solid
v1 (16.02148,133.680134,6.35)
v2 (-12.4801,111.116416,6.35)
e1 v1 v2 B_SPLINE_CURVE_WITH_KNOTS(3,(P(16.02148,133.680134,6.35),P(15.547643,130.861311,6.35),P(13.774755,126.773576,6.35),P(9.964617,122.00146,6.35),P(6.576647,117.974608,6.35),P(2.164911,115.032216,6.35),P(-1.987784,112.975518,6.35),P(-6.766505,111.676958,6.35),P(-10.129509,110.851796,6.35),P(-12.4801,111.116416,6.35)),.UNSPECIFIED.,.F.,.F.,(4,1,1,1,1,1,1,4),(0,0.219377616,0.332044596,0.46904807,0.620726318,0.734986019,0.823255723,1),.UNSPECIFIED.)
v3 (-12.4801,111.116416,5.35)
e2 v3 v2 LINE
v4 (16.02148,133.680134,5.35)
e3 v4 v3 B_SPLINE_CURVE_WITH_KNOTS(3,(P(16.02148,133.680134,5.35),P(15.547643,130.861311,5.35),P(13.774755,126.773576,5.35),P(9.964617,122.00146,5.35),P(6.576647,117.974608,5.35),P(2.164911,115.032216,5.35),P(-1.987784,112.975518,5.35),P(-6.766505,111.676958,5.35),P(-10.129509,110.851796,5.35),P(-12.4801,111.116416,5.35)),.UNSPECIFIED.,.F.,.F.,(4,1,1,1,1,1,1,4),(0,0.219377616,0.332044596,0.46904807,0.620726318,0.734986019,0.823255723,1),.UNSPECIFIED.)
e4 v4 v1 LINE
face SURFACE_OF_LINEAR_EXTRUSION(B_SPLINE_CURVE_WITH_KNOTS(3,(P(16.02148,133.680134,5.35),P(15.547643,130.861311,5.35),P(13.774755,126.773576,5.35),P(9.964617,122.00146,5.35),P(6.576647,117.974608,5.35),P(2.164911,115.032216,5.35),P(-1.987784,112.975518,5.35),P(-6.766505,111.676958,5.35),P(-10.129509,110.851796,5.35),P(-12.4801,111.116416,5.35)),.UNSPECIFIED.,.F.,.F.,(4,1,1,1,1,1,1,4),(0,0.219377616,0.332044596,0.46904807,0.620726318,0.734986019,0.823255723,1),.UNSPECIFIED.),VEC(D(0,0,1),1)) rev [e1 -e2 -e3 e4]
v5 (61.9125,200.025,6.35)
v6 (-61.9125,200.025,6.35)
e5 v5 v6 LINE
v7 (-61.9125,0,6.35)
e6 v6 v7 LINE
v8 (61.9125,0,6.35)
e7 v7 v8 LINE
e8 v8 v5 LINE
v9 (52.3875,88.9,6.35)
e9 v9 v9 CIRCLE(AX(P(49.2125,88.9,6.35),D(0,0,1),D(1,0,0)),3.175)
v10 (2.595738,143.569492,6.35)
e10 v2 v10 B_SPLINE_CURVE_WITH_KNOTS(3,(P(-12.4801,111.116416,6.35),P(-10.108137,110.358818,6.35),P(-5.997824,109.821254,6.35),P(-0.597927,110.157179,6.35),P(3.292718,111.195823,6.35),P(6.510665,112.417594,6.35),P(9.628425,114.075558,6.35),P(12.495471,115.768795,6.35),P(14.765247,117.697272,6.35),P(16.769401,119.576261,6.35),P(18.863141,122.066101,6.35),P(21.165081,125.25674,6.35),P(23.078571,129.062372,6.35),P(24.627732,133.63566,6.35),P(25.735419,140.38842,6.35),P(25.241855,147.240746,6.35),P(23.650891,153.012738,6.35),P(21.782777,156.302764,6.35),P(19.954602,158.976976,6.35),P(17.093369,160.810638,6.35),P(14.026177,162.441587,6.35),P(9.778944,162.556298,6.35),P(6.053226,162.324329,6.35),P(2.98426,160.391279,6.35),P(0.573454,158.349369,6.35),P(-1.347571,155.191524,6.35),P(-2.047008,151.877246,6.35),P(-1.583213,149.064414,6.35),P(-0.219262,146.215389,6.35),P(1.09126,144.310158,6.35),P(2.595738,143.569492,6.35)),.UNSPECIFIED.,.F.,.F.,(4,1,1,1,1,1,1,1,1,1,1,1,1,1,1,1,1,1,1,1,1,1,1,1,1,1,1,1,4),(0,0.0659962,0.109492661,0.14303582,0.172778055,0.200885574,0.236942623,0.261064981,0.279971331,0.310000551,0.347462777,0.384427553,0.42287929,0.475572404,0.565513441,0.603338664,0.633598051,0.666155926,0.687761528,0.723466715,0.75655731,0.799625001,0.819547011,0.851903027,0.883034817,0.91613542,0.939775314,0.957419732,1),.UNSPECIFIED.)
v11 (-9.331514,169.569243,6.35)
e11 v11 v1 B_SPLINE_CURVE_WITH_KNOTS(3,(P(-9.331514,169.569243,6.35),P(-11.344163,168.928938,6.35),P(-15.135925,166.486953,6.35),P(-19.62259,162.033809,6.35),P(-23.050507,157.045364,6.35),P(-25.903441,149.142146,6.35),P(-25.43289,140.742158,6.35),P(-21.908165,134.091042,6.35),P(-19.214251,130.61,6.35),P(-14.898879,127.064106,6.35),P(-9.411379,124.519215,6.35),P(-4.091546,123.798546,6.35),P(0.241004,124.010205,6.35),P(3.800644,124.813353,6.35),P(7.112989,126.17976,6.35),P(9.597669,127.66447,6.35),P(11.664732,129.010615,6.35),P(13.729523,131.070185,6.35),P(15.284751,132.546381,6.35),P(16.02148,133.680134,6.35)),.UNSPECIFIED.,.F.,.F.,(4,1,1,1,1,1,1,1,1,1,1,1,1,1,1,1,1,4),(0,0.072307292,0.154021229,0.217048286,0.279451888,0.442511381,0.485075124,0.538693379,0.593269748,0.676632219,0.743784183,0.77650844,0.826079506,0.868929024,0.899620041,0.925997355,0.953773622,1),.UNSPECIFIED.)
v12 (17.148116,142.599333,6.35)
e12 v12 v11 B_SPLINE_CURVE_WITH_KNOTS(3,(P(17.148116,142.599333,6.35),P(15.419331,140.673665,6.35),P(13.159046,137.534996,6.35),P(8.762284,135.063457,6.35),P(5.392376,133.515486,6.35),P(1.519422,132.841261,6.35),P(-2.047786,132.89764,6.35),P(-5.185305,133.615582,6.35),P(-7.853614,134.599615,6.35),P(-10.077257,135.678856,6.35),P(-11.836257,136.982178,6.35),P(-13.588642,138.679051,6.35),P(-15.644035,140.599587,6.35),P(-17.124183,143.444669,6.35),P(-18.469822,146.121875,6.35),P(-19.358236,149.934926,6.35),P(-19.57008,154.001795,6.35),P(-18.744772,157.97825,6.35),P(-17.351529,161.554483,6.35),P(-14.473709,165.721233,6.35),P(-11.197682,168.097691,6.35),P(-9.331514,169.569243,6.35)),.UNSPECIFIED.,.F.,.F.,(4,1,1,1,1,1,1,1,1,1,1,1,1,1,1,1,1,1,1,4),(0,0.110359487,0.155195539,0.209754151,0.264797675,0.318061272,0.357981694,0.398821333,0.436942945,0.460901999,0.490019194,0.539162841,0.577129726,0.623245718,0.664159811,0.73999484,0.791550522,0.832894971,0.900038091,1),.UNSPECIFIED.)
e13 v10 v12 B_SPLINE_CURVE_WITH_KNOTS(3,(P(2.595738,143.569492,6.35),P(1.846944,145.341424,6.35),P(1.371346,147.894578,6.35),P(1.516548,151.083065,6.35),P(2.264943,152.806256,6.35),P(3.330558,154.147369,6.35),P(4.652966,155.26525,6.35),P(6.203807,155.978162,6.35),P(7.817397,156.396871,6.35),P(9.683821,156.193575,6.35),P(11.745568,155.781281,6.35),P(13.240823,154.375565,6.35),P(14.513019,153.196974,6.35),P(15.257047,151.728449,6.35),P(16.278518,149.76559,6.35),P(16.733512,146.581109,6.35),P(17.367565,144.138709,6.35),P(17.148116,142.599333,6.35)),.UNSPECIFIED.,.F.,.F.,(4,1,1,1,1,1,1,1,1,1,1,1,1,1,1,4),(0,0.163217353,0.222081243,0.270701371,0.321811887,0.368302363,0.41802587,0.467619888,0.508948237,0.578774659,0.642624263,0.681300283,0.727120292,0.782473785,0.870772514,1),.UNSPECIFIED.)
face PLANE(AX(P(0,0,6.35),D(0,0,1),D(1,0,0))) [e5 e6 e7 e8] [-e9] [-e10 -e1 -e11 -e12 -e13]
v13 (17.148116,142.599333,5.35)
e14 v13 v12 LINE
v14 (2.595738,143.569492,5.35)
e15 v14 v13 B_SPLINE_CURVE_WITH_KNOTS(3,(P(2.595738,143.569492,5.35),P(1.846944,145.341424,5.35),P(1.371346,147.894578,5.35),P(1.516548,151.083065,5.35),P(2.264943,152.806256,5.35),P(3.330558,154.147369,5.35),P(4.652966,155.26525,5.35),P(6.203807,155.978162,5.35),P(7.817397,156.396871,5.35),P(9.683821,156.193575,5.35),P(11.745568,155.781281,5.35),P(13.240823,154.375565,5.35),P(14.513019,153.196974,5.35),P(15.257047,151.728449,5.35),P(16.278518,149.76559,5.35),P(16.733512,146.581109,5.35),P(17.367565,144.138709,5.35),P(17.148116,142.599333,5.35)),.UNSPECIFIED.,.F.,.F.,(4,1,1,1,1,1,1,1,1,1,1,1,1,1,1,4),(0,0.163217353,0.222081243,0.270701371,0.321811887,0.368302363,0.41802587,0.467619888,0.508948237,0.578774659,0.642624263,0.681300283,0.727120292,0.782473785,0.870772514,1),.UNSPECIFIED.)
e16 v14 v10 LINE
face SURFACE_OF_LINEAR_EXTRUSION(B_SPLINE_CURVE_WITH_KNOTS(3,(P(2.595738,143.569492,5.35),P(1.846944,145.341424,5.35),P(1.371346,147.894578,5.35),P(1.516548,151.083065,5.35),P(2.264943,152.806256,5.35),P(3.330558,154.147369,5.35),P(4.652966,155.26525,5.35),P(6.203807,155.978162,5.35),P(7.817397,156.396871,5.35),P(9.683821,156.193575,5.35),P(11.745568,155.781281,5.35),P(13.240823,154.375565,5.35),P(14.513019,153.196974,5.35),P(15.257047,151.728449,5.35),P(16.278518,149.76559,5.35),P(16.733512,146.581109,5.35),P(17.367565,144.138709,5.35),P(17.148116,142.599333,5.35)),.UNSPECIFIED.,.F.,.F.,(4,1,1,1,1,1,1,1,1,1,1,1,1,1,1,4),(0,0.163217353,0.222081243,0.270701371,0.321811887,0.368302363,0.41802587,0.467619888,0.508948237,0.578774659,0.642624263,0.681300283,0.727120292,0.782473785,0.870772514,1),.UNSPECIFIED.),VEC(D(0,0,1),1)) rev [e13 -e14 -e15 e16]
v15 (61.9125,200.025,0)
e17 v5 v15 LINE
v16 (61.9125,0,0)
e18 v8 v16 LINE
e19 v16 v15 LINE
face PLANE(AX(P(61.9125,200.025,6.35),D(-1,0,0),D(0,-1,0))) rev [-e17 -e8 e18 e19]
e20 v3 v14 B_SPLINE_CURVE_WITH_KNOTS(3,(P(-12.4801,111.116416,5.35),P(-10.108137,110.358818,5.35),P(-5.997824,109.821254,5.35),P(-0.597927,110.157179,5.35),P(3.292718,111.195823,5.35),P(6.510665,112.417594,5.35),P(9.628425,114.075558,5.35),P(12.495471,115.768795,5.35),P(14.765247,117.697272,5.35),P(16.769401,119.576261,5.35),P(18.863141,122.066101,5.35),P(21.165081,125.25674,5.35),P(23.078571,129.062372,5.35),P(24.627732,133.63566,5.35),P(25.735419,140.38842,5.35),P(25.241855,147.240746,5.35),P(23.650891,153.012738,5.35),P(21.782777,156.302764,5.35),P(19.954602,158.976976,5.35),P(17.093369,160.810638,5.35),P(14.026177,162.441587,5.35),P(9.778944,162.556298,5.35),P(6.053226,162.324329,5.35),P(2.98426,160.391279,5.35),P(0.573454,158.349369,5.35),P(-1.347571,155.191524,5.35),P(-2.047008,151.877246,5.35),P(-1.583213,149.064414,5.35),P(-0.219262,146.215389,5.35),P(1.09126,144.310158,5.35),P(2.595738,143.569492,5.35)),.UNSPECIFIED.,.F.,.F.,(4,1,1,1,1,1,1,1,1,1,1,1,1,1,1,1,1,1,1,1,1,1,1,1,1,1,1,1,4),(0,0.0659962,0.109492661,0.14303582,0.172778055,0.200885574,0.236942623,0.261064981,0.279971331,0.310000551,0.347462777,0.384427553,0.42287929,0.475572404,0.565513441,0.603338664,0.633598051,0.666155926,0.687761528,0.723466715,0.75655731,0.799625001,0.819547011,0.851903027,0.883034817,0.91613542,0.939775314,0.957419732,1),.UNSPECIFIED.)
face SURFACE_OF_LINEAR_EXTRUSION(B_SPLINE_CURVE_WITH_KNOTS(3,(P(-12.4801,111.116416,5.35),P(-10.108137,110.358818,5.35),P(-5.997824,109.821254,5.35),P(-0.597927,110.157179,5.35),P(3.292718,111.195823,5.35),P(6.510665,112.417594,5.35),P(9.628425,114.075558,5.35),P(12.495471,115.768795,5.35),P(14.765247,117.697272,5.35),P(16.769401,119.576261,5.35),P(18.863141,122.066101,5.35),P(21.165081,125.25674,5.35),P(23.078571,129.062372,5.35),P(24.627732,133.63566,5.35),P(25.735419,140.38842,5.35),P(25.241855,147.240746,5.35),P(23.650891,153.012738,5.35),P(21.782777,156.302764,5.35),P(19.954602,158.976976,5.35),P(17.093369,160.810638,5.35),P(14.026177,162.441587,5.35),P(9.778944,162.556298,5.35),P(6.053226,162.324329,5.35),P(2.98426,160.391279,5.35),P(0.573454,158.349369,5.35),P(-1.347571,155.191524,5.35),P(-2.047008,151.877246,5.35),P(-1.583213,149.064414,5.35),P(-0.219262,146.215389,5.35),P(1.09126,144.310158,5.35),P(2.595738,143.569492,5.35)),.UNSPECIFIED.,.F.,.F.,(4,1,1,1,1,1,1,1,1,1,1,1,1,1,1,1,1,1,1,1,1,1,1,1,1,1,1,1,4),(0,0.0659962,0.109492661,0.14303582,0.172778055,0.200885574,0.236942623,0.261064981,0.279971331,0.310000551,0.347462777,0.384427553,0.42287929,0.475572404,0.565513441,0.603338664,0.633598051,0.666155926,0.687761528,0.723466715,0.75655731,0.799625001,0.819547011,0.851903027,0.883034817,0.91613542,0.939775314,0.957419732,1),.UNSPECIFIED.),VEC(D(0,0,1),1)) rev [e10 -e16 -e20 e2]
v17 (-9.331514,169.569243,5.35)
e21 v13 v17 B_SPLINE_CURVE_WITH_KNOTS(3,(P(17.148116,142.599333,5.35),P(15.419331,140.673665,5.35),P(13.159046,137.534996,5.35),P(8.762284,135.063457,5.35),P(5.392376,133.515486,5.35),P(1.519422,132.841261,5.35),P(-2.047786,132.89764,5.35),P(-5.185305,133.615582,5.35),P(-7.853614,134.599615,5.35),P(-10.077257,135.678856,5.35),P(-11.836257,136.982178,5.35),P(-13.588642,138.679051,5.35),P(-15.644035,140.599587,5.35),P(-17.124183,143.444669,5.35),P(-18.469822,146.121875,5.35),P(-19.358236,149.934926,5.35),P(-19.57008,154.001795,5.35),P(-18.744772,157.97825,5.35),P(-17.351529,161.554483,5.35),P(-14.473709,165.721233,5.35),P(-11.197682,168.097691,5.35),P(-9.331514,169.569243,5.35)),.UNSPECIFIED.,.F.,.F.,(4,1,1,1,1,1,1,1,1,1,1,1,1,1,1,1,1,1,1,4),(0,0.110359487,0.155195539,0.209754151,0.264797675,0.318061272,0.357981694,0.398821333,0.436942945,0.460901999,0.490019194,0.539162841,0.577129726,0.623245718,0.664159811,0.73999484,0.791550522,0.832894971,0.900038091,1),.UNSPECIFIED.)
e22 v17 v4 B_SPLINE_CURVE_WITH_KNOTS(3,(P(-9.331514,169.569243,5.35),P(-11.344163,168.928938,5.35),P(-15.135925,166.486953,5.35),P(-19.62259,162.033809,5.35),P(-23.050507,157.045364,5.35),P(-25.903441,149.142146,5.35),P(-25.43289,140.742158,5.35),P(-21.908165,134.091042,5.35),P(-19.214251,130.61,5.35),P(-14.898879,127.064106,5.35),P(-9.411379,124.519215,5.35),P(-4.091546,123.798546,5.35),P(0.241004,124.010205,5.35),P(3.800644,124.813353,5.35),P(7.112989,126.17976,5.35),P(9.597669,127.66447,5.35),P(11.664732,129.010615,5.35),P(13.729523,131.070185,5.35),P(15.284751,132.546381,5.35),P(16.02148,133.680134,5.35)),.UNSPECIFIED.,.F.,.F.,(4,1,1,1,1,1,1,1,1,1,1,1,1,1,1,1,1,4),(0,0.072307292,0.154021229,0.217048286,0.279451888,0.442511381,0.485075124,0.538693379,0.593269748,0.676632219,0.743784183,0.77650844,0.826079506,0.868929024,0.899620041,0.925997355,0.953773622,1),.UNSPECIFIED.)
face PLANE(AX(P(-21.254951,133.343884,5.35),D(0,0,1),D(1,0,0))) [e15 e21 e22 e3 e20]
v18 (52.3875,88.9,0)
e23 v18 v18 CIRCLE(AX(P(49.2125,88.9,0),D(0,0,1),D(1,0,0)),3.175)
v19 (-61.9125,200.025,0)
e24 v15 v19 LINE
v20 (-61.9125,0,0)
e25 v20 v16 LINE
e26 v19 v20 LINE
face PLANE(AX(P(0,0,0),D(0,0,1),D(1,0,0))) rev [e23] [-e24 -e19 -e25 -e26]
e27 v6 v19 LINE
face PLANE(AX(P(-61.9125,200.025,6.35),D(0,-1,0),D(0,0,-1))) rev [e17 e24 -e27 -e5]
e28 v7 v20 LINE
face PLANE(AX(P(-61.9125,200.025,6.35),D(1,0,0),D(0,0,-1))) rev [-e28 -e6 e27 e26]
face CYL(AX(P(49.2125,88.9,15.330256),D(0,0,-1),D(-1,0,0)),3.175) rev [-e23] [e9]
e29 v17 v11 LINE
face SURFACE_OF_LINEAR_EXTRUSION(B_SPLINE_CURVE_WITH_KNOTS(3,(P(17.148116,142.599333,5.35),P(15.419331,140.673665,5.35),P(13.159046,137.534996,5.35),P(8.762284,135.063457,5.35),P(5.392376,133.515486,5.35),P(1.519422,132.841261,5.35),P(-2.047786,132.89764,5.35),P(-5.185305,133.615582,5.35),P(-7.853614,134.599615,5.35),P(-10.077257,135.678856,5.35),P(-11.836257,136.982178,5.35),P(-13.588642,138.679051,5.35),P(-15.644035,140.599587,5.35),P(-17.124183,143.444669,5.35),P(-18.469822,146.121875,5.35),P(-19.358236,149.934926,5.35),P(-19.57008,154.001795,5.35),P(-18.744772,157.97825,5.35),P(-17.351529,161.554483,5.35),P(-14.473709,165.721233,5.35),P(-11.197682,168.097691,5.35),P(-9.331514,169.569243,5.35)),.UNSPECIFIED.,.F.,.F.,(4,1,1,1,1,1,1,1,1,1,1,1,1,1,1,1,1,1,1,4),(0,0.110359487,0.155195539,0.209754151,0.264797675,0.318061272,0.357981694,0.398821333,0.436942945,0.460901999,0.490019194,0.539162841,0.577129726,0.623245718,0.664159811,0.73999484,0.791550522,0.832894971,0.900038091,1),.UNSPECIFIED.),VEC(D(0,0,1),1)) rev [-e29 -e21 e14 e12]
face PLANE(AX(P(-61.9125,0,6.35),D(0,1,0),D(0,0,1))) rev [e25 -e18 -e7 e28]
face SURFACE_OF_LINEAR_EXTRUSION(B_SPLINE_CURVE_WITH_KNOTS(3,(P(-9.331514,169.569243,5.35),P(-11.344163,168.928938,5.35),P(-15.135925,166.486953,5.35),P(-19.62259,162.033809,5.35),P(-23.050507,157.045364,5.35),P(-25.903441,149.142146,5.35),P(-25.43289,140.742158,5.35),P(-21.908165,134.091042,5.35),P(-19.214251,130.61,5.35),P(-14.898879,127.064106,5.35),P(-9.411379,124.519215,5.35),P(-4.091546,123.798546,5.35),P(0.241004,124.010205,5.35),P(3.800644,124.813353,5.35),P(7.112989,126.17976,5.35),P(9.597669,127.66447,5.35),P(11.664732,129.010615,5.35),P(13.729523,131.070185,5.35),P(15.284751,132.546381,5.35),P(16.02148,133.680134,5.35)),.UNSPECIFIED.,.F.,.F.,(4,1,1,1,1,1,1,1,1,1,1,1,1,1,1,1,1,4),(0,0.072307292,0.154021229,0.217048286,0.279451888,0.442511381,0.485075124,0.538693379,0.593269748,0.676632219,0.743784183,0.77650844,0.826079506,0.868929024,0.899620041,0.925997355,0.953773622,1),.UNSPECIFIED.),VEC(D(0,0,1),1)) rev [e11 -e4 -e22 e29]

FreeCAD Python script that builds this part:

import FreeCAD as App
import Part
import Sketcher
Q = App.Units.Quantity

doc = App.newDocument("Part")
body = doc.addObject("PartDesign::Body", "Body")

# Sketch on XY plane
sketch1 = body.newObject("Sketcher::SketchObject", "Sketch")
sketch1.AttachmentSupport = (doc.getObject("XY_Plane"), [""])
sketch1.MapMode = "FlatFace"
sketch1.addGeometry([
    Part.LineSegment(App.Vector(-62, 200, 0), App.Vector(-62, 0, 0)),
    Part.LineSegment(App.Vector(-62, 0, 0), App.Vector(62, 0, 0)),
    Part.LineSegment(App.Vector(62, 0, 0), App.Vector(62, 200, 0)),
    Part.LineSegment(App.Vector(62, 200, 0), App.Vector(-62, 200, 0)),
], False)
sketch1.addConstraint([
    Sketcher.Constraint("Coincident", 0, 2, 1, 1),
    Sketcher.Constraint("Coincident", 1, 2, 2, 1),
    Sketcher.Constraint("Coincident", 2, 2, 3, 1),
    Sketcher.Constraint("Coincident", 3, 2, 0, 1),
    Sketcher.Constraint("Vertical", 0),
    Sketcher.Constraint("Horizontal", 1),
    Sketcher.Constraint("Vertical", 2),
    Sketcher.Constraint("Horizontal", 3),
    Sketcher.Constraint("Symmetric", 0, 2, 1, 2, -1, 1),
    Sketcher.Constraint("DistanceX", 1, 1, 1, 2, Q("4.875 in")),
    Sketcher.Constraint("DistanceY", 0, 2, 0, 1, Q("7.875 in")),
])
pad1 = body.newObject("PartDesign::Pad", "Pad")
pad1.Profile = sketch1
pad1.Length = Q("0.25 in")

# Sketch on XY plane
sketch2 = body.newObject("Sketcher::SketchObject", "Sketch001")
sketch2.AttachmentSupport = (doc.getObject("XY_Plane"), [""])
sketch2.MapMode = "FlatFace"
sketch2.AttachmentOffset = App.Placement(App.Vector(0, 0, 0.25 * 25.4), App.Rotation())
sketch2.addGeometry([
    Part.BSplineCurve([App.Vector(-9.331514, 169.569243, 0), App.Vector(-11.197682, 168.097691, 0), App.Vector(-14.473709, 165.721233, 0), App.Vector(-17.351529, 161.554483, 0), App.Vector(-18.744772, 157.97825, 0), App.Vector(-19.57008, 154.001795, 0), App.Vector(-19.358236, 149.934926, 0), App.Vector(-18.469822, 146.121875, 0), App.Vector(-17.124183, 143.444669, 0), App.Vector(-15.644035, 140.599587, 0), App.Vector(-13.588642, 138.679051, 0), App.Vector(-11.836257, 136.982178, 0), App.Vector(-10.077257, 135.678856, 0), App.Vector(-7.853614, 134.599615, 0), App.Vector(-5.185305, 133.615582, 0), App.Vector(-2.047786, 132.89764, 0), App.Vector(1.519422, 132.841261, 0), App.Vector(5.392376, 133.515486, 0), App.Vector(8.762284, 135.063457, 0), App.Vector(13.159046, 137.534996, 0), App.Vector(15.419331, 140.673665, 0), App.Vector(17.148116, 142.599333, 0)], [4, 1, 1, 1, 1, 1, 1, 1, 1, 1, 1, 1, 1, 1, 1, 1, 1, 1, 1, 4], [0, 0.099961909, 0.167105029, 0.208449478, 0.26000516, 0.335840189, 0.376754282, 0.422870274, 0.460837159, 0.509980806, 0.539098001, 0.563057055, 0.601178667, 0.642018306, 0.681938728, 0.735202325, 0.790245849, 0.844804461, 0.889640513, 1], False, 3, [1, 1, 1, 1, 1, 1, 1, 1, 1, 1, 1, 1, 1, 1, 1, 1, 1, 1, 1, 1, 1, 1], False),  # 0
    Part.BSplineCurve([App.Vector(16.02148, 133.680134, 0), App.Vector(15.284751, 132.546381, 0), App.Vector(13.729523, 131.070185, 0), App.Vector(11.664732, 129.010615, 0), App.Vector(9.597669, 127.66447, 0), App.Vector(7.112989, 126.17976, 0), App.Vector(3.800644, 124.813353, 0), App.Vector(0.241004, 124.010205, 0), App.Vector(-4.091546, 123.798546, 0), App.Vector(-9.411379, 124.519215, 0), App.Vector(-14.898879, 127.064106, 0), App.Vector(-19.214251, 130.61, 0), App.Vector(-21.908165, 134.091042, 0), App.Vector(-25.43289, 140.742158, 0), App.Vector(-25.903441, 149.142146, 0), App.Vector(-23.050507, 157.045364, 0), App.Vector(-19.62259, 162.033809, 0), App.Vector(-15.135925, 166.486953, 0), App.Vector(-11.344163, 168.928938, 0), App.Vector(-9.331514, 169.569243, 0)], [4, 1, 1, 1, 1, 1, 1, 1, 1, 1, 1, 1, 1, 1, 1, 1, 1, 4], [0, 0.046226378, 0.074002645, 0.100379959, 0.131070976, 0.173920494, 0.22349156, 0.256215817, 0.323367781, 0.406730252, 0.461306621, 0.514924876, 0.557488619, 0.720548112, 0.782951714, 0.845978771, 0.927692708, 1], False, 3, [1, 1, 1, 1, 1, 1, 1, 1, 1, 1, 1, 1, 1, 1, 1, 1, 1, 1, 1, 1], False),  # 1
    Part.BSplineCurve([App.Vector(-12.4801, 111.116416, 0), App.Vector(-10.129509, 110.851796, 0), App.Vector(-6.766505, 111.676958, 0), App.Vector(-1.987784, 112.975518, 0), App.Vector(2.164911, 115.032216, 0), App.Vector(6.576647, 117.974608, 0), App.Vector(9.964617, 122.00146, 0), App.Vector(13.774755, 126.773576, 0), App.Vector(15.547643, 130.861311, 0), App.Vector(16.02148, 133.680134, 0)], [4, 1, 1, 1, 1, 1, 1, 4], [0, 0.176744277, 0.265013981, 0.379273682, 0.53095193, 0.667955404, 0.780622384, 1], False, 3, [1, 1, 1, 1, 1, 1, 1, 1, 1, 1], False),  # 2
    Part.BSplineCurve([App.Vector(2.595738, 143.569492, 0), App.Vector(1.09126, 144.310158, 0), App.Vector(-0.219262, 146.215389, 0), App.Vector(-1.583213, 149.064414, 0), App.Vector(-2.047008, 151.877246, 0), App.Vector(-1.347571, 155.191524, 0), App.Vector(0.573454, 158.349369, 0), App.Vector(2.98426, 160.391279, 0), App.Vector(6.053226, 162.324329, 0), App.Vector(9.778944, 162.556298, 0), App.Vector(14.026177, 162.441587, 0), App.Vector(17.093369, 160.810638, 0), App.Vector(19.954602, 158.976976, 0), App.Vector(21.782777, 156.302764, 0), App.Vector(23.650891, 153.012738, 0), App.Vector(25.241855, 147.240746, 0), App.Vector(25.735419, 140.38842, 0), App.Vector(24.627732, 133.63566, 0), App.Vector(23.078571, 129.062372, 0), App.Vector(21.165081, 125.25674, 0), App.Vector(18.863141, 122.066101, 0), App.Vector(16.769401, 119.576261, 0), App.Vector(14.765247, 117.697272, 0), App.Vector(12.495471, 115.768795, 0), App.Vector(9.628425, 114.075558, 0), App.Vector(6.510665, 112.417594, 0), App.Vector(3.292718, 111.195823, 0), App.Vector(-0.597927, 110.157179, 0), App.Vector(-5.997824, 109.821254, 0), App.Vector(-10.108137, 110.358818, 0), App.Vector(-12.4801, 111.116416, 0)], [4, 1, 1, 1, 1, 1, 1, 1, 1, 1, 1, 1, 1, 1, 1, 1, 1, 1, 1, 1, 1, 1, 1, 1, 1, 1, 1, 1, 4], [0, 0.042580268, 0.060224686, 0.08386458, 0.116965183, 0.148096973, 0.180452989, 0.200374999, 0.24344269, 0.276533285, 0.312238472, 0.333844074, 0.366401949, 0.396661336, 0.434486559, 0.524427596, 0.57712071, 0.615572447, 0.652537223, 0.689999449, 0.720028669, 0.738935019, 0.763057377, 0.799114426, 0.827221945, 0.85696418, 0.890507339, 0.9340038, 1], False, 3, [1, 1, 1, 1, 1, 1, 1, 1, 1, 1, 1, 1, 1, 1, 1, 1, 1, 1, 1, 1, 1, 1, 1, 1, 1, 1, 1, 1, 1, 1, 1], False),  # 3
    Part.BSplineCurve([App.Vector(17.148116, 142.599333, 0), App.Vector(17.367565, 144.138709, 0), App.Vector(16.733512, 146.581109, 0), App.Vector(16.278518, 149.76559, 0), App.Vector(15.257047, 151.728449, 0), App.Vector(14.513019, 153.196974, 0), App.Vector(13.240823, 154.375565, 0), App.Vector(11.745568, 155.781281, 0), App.Vector(9.683821, 156.193575, 0), App.Vector(7.817397, 156.396871, 0), App.Vector(6.203807, 155.978162, 0), App.Vector(4.652966, 155.26525, 0), App.Vector(3.330558, 154.147369, 0), App.Vector(2.264943, 152.806256, 0), App.Vector(1.516548, 151.083065, 0), App.Vector(1.371346, 147.894578, 0), App.Vector(1.846944, 145.341424, 0), App.Vector(2.595738, 143.569492, 0)], [4, 1, 1, 1, 1, 1, 1, 1, 1, 1, 1, 1, 1, 1, 1, 4], [0, 0.129227486, 0.217526215, 0.272879708, 0.318699717, 0.357375737, 0.421225341, 0.491051763, 0.532380112, 0.58197413, 0.631697637, 0.678188113, 0.729298629, 0.777918757, 0.836782647, 1], False, 3, [1, 1, 1, 1, 1, 1, 1, 1, 1, 1, 1, 1, 1, 1, 1, 1, 1, 1], False),  # 4
], False)
sketch2.addConstraint([
    Sketcher.Constraint("Block", 0),
    Sketcher.Constraint("Block", 1),
    Sketcher.Constraint("Block", 2),
    Sketcher.Constraint("Block", 3),
    Sketcher.Constraint("Block", 4),
])
pocket1 = body.newObject("PartDesign::Pocket", "Pocket")
pocket1.Profile = sketch2
pocket1.Length = 1

# Sketch on XY plane
sketch3 = body.newObject("Sketcher::SketchObject", "Sketch002")
sketch3.AttachmentSupport = (doc.getObject("XY_Plane"), [""])
sketch3.MapMode = "FlatFace"
sketch3.addGeometry(Part.Circle(App.Vector(49.2, 88.9, 0), App.Vector(0, 0, 1), 3.2), False)
sketch3.addConstraint([
    Sketcher.Constraint("Diameter", 0, Q("0.25 in")),
    Sketcher.Constraint("DistanceY", -1, 1, 0, 3, Q("3.5 in")),
    Sketcher.Constraint("DistanceX", -1, 1, 0, 3, Q("1.9375 in")),
])
pocket2 = body.newObject("PartDesign::Pocket", "Pocket001")
pocket2.Profile = sketch3
pocket2.Length = Q("0.25 in")
pocket2.Reversed = True

doc.recompute()
